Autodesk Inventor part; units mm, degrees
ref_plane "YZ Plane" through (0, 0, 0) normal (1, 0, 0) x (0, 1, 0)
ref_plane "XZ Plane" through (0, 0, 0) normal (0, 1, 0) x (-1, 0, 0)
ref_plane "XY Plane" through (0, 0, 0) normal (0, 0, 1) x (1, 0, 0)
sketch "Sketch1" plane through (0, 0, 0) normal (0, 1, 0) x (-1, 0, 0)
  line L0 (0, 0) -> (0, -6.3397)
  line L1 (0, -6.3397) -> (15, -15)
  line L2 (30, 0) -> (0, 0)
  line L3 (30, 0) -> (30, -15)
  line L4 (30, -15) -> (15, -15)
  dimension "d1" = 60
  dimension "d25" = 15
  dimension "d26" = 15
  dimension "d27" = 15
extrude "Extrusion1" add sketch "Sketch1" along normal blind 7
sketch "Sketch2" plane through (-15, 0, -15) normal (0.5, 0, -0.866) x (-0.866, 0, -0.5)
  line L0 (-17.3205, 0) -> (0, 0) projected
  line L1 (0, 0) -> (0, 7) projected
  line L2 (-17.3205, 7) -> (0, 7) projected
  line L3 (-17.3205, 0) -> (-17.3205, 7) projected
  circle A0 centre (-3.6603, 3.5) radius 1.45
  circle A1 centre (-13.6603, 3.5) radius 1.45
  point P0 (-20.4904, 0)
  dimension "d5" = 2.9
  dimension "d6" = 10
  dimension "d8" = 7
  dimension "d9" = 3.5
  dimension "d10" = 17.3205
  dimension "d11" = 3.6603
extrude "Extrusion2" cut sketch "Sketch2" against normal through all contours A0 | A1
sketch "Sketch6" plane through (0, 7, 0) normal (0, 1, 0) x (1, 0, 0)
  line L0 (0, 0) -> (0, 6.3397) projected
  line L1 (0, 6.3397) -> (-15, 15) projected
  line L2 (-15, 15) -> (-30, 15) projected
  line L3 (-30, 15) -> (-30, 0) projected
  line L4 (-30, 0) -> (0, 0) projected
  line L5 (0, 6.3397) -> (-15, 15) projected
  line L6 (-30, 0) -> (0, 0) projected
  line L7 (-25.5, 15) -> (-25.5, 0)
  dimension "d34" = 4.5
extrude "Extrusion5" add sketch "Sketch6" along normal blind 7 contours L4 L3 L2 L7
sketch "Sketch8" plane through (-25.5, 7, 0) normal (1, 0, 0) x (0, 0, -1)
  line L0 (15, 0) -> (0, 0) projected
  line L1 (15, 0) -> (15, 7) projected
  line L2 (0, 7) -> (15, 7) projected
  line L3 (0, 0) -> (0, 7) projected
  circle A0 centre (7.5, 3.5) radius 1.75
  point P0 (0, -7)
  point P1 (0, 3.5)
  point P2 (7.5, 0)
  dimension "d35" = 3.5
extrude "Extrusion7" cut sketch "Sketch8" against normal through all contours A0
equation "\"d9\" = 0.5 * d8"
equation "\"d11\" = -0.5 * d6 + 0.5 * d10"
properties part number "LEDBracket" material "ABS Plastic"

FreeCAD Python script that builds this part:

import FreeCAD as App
import Part
import Sketcher
from FreeCAD import Vector
Q = App.Units.Quantity

doc = App.newDocument("Part")
params = doc.addObject("Spreadsheet::Sheet", "Params")
for row, (alias, value) in enumerate([
    ("sketch1_width", "15 mm"),
    ("pad1_length", "7 mm"),
    ("sketch2_diameter", "2.9 mm"),
    ("sketch3_width", "4.5 mm"),
    ("sketch3_height", "15 mm"),
    ("pad2_length", "7 mm"),
    ("sketch4_diameter", "3.5 mm"),
], start=1):
    params.set(f"A{row}", alias)
    params.set(f"B{row}", "=" + value)
    params.setAlias(f"B{row}", alias)

body = doc.addObject("PartDesign::Body", "Body")

sketch1 = body.newObject("Sketcher::SketchObject", "Sketch")
sketch1.AttachmentSupport = (doc.getObject("XZ_Plane"), [""])
sketch1.MapMode = "FlatFace"
sketch1.addGeometry([
    Part.LineSegment(Vector(-30, 0, 0), Vector(0, 0, 0)),
    Part.LineSegment(Vector(0, 0, 0), Vector(0, -6, 0)),
    Part.LineSegment(Vector(0, -6, 0), Vector(-15, -15, 0)),
    Part.LineSegment(Vector(-15, -15, 0), Vector(-30, -15, 0)),
    Part.LineSegment(Vector(-30, -15, 0), Vector(-30, 0, 0)),
], False)
sketch1.addConstraint([
    Sketcher.Constraint("Coincident", 0, 2, 1, 1),
    Sketcher.Constraint("Coincident", 1, 2, 2, 1),
    Sketcher.Constraint("Coincident", 2, 2, 3, 1),
    Sketcher.Constraint("Coincident", 3, 2, 4, 1),
    Sketcher.Constraint("Coincident", 4, 2, 0, 1),
    Sketcher.Constraint("Horizontal", 0),
    Sketcher.Constraint("Vertical", 1),
    Sketcher.Constraint("Horizontal", 3),
    Sketcher.Constraint("Vertical", 4),
    Sketcher.Constraint("Coincident", 0, 2, -1, 1),
    Sketcher.Constraint("Equal", 3, 4),
    Sketcher.Constraint("DistanceX", 3, 2, 3, 1, 15.0),
    Sketcher.Constraint("DistanceX", 2, 2, -1, 1, 15.0),
    Sketcher.Constraint("Angle", 2, Q("-149.9999 deg")),
])
sketch1.setExpression("Constraints[11]", "Params.sketch1_width")
pad1 = body.newObject("PartDesign::Pad", "Pad")
pad1.Profile = sketch1
pad1.setExpression("Length", "Params.pad1_length")
pad1.Reversed = True

sketch2 = body.newObject("Sketcher::SketchObject", "Sketch001")
sketch2.Placement = App.Placement(Vector(-15, 0, -15), App.Rotation(Vector(-0.866025404, 0, -0.5), Vector(0, 1, 0), Vector(0.5, 0, -0.866025404), "ZXY"))
sketch2.addGeometry([
    Part.Circle(Vector(-3.7, 3.5, 0), Vector(0, 0, 1), 1.4),
    Part.Circle(Vector(-13.7, 3.5, 0), Vector(0, 0, 1), 1.4),
], False)
sketch2.addConstraint([
    Sketcher.Constraint("Equal", 0, 1),
    Sketcher.Constraint("Horizontal", 0, 3, 1, 3),
    Sketcher.Constraint("Diameter", 0, 2.9),
    Sketcher.Constraint("DistanceX", 1, 3, 0, 3, 10.0),
    Sketcher.Constraint("DistanceY", -1, 1, 0, 3, 3.5),
    Sketcher.Constraint("DistanceX", 0, 3, -1, 1, 3.6603),
])
sketch2.setExpression("Constraints[2]", "Params.sketch2_diameter")
pocket1 = body.newObject("PartDesign::Pocket", "Pocket")
pocket1.Profile = sketch2
pocket1.Type = "ThroughAll"

sketch3 = body.newObject("Sketcher::SketchObject", "Sketch002")
sketch3.AttachmentSupport = (doc.getObject("XZ_Plane"), [""])
sketch3.MapMode = "FlatFace"
sketch3.AttachmentOffset = App.Placement(Vector(0, 0, -7), App.Rotation())
sketch3.addGeometry([
    Part.LineSegment(Vector(-30, 0, 0), Vector(-25.5, 0, 0)),
    Part.LineSegment(Vector(-25.5, 0, 0), Vector(-25.5, -15, 0)),
    Part.LineSegment(Vector(-25.5, -15, 0), Vector(-30, -15, 0)),
    Part.LineSegment(Vector(-30, -15, 0), Vector(-30, 0, 0)),
], False)
sketch3.addConstraint([
    Sketcher.Constraint("Coincident", 0, 2, 1, 1),
    Sketcher.Constraint("Coincident", 1, 2, 2, 1),
    Sketcher.Constraint("Coincident", 2, 2, 3, 1),
    Sketcher.Constraint("Coincident", 3, 2, 0, 1),
    Sketcher.Constraint("Horizontal", 0),
    Sketcher.Constraint("Vertical", 1),
    Sketcher.Constraint("Horizontal", 2),
    Sketcher.Constraint("Vertical", 3),
    Sketcher.Constraint("PointOnObject", 0, 2, -1),
    Sketcher.Constraint("DistanceX", 0, 1, 0, 2, 4.5),
    Sketcher.Constraint("DistanceY", 1, 2, 1, 1, 15.0),
    Sketcher.Constraint("DistanceX", 2, 2, -1, 1, 30.0),
])
sketch3.setExpression("Constraints[9]", "Params.sketch3_width")
sketch3.setExpression("Constraints[10]", "Params.sketch3_height")
pad2 = body.newObject("PartDesign::Pad", "Pad001")
pad2.Profile = sketch3
pad2.setExpression("Length", "Params.pad2_length")
pad2.Reversed = True

sketch4 = body.newObject("Sketcher::SketchObject", "Sketch003")
sketch4.AttachmentSupport = (doc.getObject("YZ_Plane"), [""])
sketch4.MapMode = "FlatFace"
sketch4.AttachmentOffset = App.Placement(Vector(0, 0, -25.5), App.Rotation())
sketch4.addGeometry(Part.Circle(Vector(10.5, -7.5, 0), Vector(0, 0, 1), 1.8), False)
sketch4.addConstraint([
    Sketcher.Constraint("Diameter", 0, 3.5),
    Sketcher.Constraint("DistanceX", -1, 1, 0, 3, 10.5),
    Sketcher.Constraint("DistanceY", 0, 3, -1, 1, 7.5),
])
sketch4.setExpression("Constraints[0]", "Params.sketch4_diameter")
pocket2 = body.newObject("PartDesign::Pocket", "Pocket001")
pocket2.Profile = sketch4
pocket2.Type = "ThroughAll"

doc.recompute()
